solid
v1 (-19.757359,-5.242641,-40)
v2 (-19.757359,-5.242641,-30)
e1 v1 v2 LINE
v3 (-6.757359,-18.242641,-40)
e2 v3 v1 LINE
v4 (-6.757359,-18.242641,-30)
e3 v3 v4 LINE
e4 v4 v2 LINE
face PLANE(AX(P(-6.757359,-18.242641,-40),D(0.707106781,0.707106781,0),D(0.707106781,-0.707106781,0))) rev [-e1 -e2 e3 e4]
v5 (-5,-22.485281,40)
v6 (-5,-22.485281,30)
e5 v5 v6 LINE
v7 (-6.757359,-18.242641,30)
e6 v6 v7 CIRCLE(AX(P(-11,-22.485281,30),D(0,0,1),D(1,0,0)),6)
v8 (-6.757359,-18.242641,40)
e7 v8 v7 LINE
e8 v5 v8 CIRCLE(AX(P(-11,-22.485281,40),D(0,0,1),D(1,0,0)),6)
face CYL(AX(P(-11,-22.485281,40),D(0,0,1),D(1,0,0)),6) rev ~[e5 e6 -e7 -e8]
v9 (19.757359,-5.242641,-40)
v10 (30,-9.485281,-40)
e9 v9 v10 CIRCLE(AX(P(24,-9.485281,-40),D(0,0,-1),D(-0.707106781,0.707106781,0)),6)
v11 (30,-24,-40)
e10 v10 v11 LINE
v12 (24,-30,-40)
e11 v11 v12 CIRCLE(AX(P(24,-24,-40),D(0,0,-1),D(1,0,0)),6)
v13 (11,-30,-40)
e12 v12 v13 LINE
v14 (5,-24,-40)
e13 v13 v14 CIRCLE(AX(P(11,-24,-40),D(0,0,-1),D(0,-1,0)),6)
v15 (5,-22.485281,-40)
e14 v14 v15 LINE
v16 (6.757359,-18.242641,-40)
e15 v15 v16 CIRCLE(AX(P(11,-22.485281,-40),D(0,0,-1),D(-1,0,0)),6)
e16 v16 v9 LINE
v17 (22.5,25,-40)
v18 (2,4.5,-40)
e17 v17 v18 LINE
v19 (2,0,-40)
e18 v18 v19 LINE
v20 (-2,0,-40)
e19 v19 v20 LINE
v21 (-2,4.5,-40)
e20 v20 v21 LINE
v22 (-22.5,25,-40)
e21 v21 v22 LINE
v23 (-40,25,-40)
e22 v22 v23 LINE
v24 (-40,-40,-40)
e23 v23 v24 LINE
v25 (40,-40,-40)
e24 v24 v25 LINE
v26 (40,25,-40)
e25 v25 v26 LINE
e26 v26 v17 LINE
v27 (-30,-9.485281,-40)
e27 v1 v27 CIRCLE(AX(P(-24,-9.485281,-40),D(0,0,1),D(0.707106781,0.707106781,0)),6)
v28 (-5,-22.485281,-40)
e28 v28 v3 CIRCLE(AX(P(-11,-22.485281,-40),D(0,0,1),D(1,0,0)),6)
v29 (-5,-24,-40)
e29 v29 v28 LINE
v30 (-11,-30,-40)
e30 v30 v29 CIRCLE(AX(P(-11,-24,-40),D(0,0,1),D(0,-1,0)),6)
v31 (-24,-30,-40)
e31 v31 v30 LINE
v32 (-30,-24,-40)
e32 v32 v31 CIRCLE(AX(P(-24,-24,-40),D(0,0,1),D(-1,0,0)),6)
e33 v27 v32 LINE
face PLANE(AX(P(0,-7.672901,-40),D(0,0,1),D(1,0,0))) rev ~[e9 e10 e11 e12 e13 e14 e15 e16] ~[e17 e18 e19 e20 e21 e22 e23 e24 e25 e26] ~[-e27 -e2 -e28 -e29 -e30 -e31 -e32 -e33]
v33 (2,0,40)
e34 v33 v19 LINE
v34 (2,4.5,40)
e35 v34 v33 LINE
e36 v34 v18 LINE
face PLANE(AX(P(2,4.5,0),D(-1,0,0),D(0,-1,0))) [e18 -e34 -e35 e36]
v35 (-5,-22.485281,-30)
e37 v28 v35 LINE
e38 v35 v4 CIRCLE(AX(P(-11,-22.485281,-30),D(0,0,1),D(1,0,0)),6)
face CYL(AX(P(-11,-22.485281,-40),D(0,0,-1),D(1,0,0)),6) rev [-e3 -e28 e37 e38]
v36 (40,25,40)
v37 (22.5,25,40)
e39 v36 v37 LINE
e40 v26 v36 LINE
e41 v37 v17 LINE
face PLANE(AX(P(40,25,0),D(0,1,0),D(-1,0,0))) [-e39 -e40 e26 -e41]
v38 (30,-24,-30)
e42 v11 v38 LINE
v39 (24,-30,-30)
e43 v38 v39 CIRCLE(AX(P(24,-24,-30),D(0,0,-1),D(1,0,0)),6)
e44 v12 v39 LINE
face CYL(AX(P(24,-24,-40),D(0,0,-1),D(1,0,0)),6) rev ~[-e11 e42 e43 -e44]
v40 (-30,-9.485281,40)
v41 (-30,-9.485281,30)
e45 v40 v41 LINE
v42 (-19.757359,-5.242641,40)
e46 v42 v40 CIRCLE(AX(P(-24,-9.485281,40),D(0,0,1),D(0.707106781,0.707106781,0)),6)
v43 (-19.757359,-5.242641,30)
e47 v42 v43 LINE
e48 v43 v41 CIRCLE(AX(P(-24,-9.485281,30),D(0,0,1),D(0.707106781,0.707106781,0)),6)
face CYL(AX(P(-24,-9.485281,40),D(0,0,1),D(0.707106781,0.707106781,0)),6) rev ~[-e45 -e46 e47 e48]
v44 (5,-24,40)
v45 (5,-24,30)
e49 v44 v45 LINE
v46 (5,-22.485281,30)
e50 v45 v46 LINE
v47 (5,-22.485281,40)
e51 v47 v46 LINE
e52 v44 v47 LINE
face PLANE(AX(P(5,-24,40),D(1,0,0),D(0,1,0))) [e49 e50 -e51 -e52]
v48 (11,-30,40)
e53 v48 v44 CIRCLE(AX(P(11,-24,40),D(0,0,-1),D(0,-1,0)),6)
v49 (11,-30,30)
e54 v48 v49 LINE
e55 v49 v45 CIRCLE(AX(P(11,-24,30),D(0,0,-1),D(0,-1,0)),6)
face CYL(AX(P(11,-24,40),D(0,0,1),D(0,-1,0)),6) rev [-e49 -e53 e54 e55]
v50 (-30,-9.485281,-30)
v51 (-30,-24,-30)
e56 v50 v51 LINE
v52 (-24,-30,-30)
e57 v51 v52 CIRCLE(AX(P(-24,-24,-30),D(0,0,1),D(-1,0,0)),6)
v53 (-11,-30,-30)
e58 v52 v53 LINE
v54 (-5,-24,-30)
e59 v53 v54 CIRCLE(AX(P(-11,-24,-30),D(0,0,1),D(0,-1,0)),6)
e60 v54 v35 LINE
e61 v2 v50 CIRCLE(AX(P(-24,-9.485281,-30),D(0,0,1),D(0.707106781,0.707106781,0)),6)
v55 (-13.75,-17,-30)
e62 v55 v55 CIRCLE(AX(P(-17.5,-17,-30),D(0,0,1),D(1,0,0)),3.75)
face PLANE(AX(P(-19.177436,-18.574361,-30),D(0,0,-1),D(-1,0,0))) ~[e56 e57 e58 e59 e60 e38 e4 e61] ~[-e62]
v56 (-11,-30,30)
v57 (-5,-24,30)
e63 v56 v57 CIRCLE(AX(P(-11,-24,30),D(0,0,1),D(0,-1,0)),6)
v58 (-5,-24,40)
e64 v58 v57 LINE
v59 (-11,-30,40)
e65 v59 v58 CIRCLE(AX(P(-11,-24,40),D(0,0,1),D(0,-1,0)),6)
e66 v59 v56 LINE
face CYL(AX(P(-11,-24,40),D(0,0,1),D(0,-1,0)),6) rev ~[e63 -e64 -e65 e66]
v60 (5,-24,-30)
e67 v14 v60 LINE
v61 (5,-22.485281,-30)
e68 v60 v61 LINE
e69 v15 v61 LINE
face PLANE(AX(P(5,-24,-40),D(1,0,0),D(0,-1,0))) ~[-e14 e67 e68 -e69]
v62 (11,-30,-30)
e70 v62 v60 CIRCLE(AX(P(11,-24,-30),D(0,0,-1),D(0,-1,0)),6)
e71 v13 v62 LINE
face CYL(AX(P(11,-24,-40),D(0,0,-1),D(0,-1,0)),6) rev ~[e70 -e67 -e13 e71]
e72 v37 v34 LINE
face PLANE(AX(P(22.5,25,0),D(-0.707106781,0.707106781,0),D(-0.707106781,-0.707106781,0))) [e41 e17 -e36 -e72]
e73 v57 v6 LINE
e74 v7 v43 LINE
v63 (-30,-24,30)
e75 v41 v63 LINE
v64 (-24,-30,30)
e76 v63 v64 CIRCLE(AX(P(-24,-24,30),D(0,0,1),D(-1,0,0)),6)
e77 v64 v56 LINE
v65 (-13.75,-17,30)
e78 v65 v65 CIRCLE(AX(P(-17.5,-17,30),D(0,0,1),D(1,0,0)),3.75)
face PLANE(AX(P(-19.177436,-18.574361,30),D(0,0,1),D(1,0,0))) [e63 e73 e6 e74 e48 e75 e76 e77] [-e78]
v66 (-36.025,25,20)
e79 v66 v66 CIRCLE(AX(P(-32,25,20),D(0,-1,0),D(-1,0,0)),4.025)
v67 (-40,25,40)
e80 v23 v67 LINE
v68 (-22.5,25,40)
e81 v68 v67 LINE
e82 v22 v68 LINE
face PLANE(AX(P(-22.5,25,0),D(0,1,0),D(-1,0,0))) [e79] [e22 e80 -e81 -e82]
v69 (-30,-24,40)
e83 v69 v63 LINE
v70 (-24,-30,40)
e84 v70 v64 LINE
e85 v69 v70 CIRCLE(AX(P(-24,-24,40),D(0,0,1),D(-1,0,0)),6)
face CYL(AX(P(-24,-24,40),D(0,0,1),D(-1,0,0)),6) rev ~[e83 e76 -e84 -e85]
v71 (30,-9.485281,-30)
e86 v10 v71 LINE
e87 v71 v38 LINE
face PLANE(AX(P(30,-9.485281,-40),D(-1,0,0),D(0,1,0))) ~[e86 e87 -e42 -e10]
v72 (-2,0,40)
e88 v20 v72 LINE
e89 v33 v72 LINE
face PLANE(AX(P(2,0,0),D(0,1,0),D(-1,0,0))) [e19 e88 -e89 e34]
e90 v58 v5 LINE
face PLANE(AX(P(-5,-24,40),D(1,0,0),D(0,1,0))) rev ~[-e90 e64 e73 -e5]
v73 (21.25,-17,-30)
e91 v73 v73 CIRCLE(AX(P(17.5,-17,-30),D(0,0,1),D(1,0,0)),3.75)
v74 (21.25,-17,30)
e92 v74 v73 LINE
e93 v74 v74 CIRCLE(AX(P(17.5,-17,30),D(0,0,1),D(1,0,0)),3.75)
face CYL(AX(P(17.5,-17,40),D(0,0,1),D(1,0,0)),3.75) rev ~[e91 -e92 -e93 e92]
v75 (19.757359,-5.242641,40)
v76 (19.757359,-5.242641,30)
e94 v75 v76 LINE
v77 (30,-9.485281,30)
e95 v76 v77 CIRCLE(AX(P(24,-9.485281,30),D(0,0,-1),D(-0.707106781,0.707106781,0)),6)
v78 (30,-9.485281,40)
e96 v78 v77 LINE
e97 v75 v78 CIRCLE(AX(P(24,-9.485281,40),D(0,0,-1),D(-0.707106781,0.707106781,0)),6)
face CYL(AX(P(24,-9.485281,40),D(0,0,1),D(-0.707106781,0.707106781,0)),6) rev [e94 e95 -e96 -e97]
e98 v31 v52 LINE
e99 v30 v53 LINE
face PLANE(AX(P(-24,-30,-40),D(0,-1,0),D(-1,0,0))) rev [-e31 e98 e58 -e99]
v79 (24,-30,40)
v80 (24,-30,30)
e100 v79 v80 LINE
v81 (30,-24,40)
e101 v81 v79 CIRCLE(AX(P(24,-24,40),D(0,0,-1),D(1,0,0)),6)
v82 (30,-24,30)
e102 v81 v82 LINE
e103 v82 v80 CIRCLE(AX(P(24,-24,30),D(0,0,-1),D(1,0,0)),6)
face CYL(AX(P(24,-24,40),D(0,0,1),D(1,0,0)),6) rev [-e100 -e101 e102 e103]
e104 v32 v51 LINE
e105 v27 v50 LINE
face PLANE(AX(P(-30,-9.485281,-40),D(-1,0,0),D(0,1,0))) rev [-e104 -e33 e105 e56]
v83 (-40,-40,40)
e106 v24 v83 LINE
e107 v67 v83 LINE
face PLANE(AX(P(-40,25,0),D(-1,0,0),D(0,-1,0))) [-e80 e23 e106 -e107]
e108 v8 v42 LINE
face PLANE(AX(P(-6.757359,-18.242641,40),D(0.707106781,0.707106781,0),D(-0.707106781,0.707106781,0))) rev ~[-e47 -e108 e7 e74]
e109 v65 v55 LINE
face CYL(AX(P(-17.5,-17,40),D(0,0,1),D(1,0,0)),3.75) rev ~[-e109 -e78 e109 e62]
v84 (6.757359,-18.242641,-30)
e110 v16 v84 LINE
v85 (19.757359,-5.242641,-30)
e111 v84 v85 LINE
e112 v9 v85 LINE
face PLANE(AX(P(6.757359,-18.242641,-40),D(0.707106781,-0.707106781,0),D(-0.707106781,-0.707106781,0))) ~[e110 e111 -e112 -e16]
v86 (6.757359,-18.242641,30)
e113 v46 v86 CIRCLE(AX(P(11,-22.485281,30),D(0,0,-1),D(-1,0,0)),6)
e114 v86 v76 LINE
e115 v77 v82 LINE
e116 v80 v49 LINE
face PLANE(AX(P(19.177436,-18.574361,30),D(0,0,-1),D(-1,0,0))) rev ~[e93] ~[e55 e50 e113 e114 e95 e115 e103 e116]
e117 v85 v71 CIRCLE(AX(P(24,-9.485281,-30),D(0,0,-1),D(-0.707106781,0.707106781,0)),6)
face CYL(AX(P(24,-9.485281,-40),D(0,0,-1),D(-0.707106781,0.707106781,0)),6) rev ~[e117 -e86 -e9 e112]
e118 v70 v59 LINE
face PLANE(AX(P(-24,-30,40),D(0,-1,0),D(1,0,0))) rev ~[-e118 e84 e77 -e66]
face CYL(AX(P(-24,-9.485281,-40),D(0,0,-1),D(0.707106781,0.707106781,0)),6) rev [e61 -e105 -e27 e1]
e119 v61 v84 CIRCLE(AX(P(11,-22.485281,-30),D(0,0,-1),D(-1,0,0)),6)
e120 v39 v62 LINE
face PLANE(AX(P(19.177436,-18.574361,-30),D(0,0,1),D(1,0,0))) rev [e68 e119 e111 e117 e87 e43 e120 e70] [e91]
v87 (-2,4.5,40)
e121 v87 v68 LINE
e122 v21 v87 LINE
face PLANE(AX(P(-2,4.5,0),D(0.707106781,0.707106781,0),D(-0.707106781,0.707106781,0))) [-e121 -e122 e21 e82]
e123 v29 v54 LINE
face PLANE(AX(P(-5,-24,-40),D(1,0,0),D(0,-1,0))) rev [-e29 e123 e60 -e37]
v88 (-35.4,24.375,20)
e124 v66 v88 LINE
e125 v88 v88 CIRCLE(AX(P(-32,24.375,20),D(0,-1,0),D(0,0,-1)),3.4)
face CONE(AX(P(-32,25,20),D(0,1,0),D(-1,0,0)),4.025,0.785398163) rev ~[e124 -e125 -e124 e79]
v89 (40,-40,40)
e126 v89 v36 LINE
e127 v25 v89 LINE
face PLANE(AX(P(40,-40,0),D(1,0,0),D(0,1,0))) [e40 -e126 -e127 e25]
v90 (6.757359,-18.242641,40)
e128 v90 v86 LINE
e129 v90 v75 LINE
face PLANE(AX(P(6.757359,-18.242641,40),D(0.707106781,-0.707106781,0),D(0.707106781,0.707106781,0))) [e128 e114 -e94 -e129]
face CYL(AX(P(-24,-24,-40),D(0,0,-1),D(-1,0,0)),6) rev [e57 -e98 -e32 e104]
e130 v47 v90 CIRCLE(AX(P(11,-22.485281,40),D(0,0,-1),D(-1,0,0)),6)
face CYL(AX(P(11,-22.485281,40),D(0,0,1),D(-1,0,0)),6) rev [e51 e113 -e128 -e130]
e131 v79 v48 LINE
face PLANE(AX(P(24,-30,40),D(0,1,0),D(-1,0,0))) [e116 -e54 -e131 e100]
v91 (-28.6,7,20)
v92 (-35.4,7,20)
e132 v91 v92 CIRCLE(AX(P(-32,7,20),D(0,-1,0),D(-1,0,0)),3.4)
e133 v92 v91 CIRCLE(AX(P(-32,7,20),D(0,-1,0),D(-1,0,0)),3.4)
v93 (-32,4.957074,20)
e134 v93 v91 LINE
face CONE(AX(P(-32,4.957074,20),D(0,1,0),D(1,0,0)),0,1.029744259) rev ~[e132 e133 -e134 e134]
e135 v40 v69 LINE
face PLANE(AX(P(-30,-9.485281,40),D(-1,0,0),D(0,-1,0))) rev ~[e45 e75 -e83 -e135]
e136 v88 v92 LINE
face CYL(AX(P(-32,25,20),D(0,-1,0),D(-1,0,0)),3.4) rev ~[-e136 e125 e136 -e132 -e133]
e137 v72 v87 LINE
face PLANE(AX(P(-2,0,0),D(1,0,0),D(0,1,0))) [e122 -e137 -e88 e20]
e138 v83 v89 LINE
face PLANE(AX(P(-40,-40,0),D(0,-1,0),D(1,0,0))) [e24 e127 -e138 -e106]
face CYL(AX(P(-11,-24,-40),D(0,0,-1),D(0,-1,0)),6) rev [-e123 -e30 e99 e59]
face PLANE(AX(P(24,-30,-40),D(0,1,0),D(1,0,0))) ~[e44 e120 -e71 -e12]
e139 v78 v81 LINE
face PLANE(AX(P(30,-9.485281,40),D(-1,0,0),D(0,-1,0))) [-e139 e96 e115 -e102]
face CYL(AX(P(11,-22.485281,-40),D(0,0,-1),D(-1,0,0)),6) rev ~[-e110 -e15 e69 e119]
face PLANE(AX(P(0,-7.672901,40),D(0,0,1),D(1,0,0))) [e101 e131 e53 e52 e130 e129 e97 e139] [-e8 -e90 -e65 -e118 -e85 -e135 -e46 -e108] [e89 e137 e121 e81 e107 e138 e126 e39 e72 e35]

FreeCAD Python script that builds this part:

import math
import FreeCAD as App
import Part
import Sketcher

V = App.Vector
Q = App.Units.Quantity

doc = App.newDocument("Part")
params = doc.addObject("Spreadsheet::Sheet", "Params")
for row, (alias, value) in enumerate([
    ("sketch1_width", "4 mm"),
    ("sketch1_width2", "80 mm"),
    ("sketch1_height", "65 mm"),
    ("sketch1_width3", "17.5 mm"),
    ("sketch1_height2", "4.5 mm"),
    ("pad1_length", "80 mm"),
    ("sketch2_radius", "6 mm"),
    ("sketch2_diameter", "7.5 mm"),
    ("sketch2_width", "13 mm"),
    ("pocket1_length", "10 mm"),
    ("sketch3_diameter", "7.5 mm"),
    ("sketch4_diameter", "6.8 mm"),
    ("hole_diameter", "6.8 mm"),
    ("hole_depth", "18 mm"),
    ("hole_csink_diameter", "8.05 mm"),
], start=1):
    params.set(f"A{row}", alias)
    params.set(f"B{row}", "=" + value)
    params.setAlias(f"B{row}", alias)

body = doc.addObject("PartDesign::Body", "Body")

# Sketch on XY plane
sketch1 = doc.addObject("Sketcher::SketchObject", "Sketch")
body.addObject(sketch1)
sketch1.AttachmentSupport = (doc.XY_Plane, [""])
sketch1.MapMode = "FlatFace"
sketch1.addGeometry(Part.LineSegment(V(2, 0, 0), V(-2, 0, 0)), False)
sketch1.addGeometry(Part.LineSegment(V(-2, 0, 0), V(-2, 4.5, 0)), False)
sketch1.addGeometry(Part.LineSegment(V(-2, 4.5, 0), V(-22.5, 25, 0)), False)
sketch1.addGeometry(Part.LineSegment(V(-22.5, 25, 0), V(-40, 25, 0)), False)
sketch1.addGeometry(Part.LineSegment(V(-40, 25, 0), V(-40, -40, 0)), False)
sketch1.addGeometry(Part.LineSegment(V(-40, -40, 0), V(40, -40, 0)), False)
sketch1.addGeometry(Part.LineSegment(V(40, -40, 0), V(40, 25, 0)), False)
sketch1.addGeometry(Part.LineSegment(V(40, 25, 0), V(22.5, 25, 0)), False)
sketch1.addGeometry(Part.LineSegment(V(22.5, 25, 0), V(2, 4.5, 0)), False)
sketch1.addGeometry(Part.LineSegment(V(2, 4.5, 0), V(2, 0, 0)), False)
sketch1.addConstraint(Sketcher.Constraint("Coincident", 0, 2, 1, 1))
sketch1.addConstraint(Sketcher.Constraint("Coincident", 1, 2, 2, 1))
sketch1.addConstraint(Sketcher.Constraint("Coincident", 2, 2, 3, 1))
sketch1.addConstraint(Sketcher.Constraint("Coincident", 3, 2, 4, 1))
sketch1.addConstraint(Sketcher.Constraint("Coincident", 4, 2, 5, 1))
sketch1.addConstraint(Sketcher.Constraint("Coincident", 5, 2, 6, 1))
sketch1.addConstraint(Sketcher.Constraint("Coincident", 6, 2, 7, 1))
sketch1.addConstraint(Sketcher.Constraint("Coincident", 7, 2, 8, 1))
sketch1.addConstraint(Sketcher.Constraint("Coincident", 8, 2, 9, 1))
sketch1.addConstraint(Sketcher.Constraint("Coincident", 9, 2, 0, 1))
sketch1.addConstraint(Sketcher.Constraint("Horizontal", 0))
sketch1.addConstraint(Sketcher.Constraint("Vertical", 1))
sketch1.addConstraint(Sketcher.Constraint("Horizontal", 3))
sketch1.addConstraint(Sketcher.Constraint("Vertical", 4))
sketch1.addConstraint(Sketcher.Constraint("Horizontal", 5))
sketch1.addConstraint(Sketcher.Constraint("Vertical", 6))
sketch1.addConstraint(Sketcher.Constraint("Horizontal", 7))
sketch1.addConstraint(Sketcher.Constraint("Vertical", 9))
sketch1.addConstraint(Sketcher.Constraint("Symmetric", 0, 2, 9, 2, -1, 1))
sketch1.addConstraint(Sketcher.Constraint("Symmetric", 3, 2, 6, 2, -2))
sketch1.addConstraint(Sketcher.Constraint("Perpendicular", 2, 8))
sketch1.addConstraint(Sketcher.Constraint("Horizontal", 1, 2, 8, 2))
sketch1.addConstraint(Sketcher.Constraint("Equal", 3, 7))
sketch1.addConstraint(Sketcher.Constraint("DistanceX", 0, 2, 0, 1, Q("4 mm")))
sketch1.addConstraint(Sketcher.Constraint("DistanceX", 5, 1, 5, 2, Q("80 mm")))
sketch1.addConstraint(Sketcher.Constraint("DistanceY", 4, 2, 4, 1, Q("65 mm")))
sketch1.addConstraint(Sketcher.Constraint("DistanceX", 3, 2, 3, 1, Q("17.5 mm")))
sketch1.addConstraint(Sketcher.Constraint("DistanceY", 1, 1, 1, 2, Q("4.5 mm")))
sketch1.setExpression("Constraints[23]", "Params.sketch1_width")
sketch1.setExpression("Constraints[24]", "Params.sketch1_width2")
sketch1.setExpression("Constraints[25]", "Params.sketch1_height")
sketch1.setExpression("Constraints[26]", "Params.sketch1_width3")
sketch1.setExpression("Constraints[27]", "Params.sketch1_height2")
pad1 = doc.addObject("PartDesign::Pad", "Pad")
body.addObject(pad1)
pad1.Profile = sketch1
pad1.setExpression("Length", "Params.pad1_length")
pad1.Midplane = True

# Sketch on XY plane
sketch2 = doc.addObject("Sketcher::SketchObject", "Sketch001")
body.addObject(sketch2)
sketch2.AttachmentSupport = (doc.XY_Plane, [""])
sketch2.MapMode = "FlatFace"
sketch2.AttachmentOffset = App.Placement(V(0, 0, 40), App.Rotation())
sketch2.addGeometry(Part.LineSegment(V(30, -24, 0), V(30, -9.5, 0)), False)
sketch2.addGeometry(Part.ArcOfCircle(Part.Circle(V(24, -9.5, 0), V(0, 0, 1), 6), math.radians(0), math.radians(135)), False)
sketch2.addGeometry(Part.LineSegment(V(19.8, -5.2, 0), V(6.8, -18.2, 0)), False)
sketch2.addGeometry(Part.ArcOfCircle(Part.Circle(V(11, -22.5, 0), V(0, 0, 1), 6), math.radians(135), math.radians(180)), False)
sketch2.addGeometry(Part.LineSegment(V(5, -22.5, 0), V(5, -24, 0)), False)
sketch2.addGeometry(Part.ArcOfCircle(Part.Circle(V(11, -24, 0), V(0, 0, 1), 6), math.radians(180), math.radians(270)), False)
sketch2.addGeometry(Part.LineSegment(V(11, -30, 0), V(24, -30, 0)), False)
sketch2.addGeometry(Part.ArcOfCircle(Part.Circle(V(24, -24, 0), V(0, 0, 1), 6), math.radians(-90), math.radians(0)), False)
sketch2.addGeometry(Part.Circle(V(17.5, -17, 0), V(0, 0, 1), 3.8), False)
sketch2.addGeometry(Part.LineSegment(V(-24, -30, 0), V(-11, -30, 0)), False)
sketch2.addGeometry(Part.ArcOfCircle(Part.Circle(V(-11, -24, 0), V(0, 0, 1), 6), math.radians(-90), math.radians(0)), False)
sketch2.addGeometry(Part.LineSegment(V(-5, -24, 0), V(-5, -22.5, 0)), False)
sketch2.addGeometry(Part.ArcOfCircle(Part.Circle(V(-11, -22.5, 0), V(0, 0, 1), 6), math.radians(0), math.radians(45)), False)
sketch2.addGeometry(Part.LineSegment(V(-6.8, -18.2, 0), V(-19.8, -5.2, 0)), False)
sketch2.addGeometry(Part.ArcOfCircle(Part.Circle(V(-24, -9.5, 0), V(0, 0, 1), 6), math.radians(45), math.radians(180)), False)
sketch2.addGeometry(Part.LineSegment(V(-30, -9.5, 0), V(-30, -24, 0)), False)
sketch2.addGeometry(Part.ArcOfCircle(Part.Circle(V(-24, -24, 0), V(0, 0, 1), 6), math.radians(180), math.radians(270)), False)
sketch2.addGeometry(Part.Circle(V(-17.5, -17, 0), V(0, 0, 1), 3.8), False)
sketch2.addConstraint(Sketcher.Constraint("Tangent", 0, 2, 1, 1))
sketch2.addConstraint(Sketcher.Constraint("Tangent", 1, 2, 2, 1))
sketch2.addConstraint(Sketcher.Constraint("Tangent", 2, 2, 3, 1))
sketch2.addConstraint(Sketcher.Constraint("Tangent", 3, 2, 4, 1))
sketch2.addConstraint(Sketcher.Constraint("Tangent", 4, 2, 5, 1))
sketch2.addConstraint(Sketcher.Constraint("Tangent", 5, 2, 6, 1))
sketch2.addConstraint(Sketcher.Constraint("Tangent", 6, 2, 7, 1))
sketch2.addConstraint(Sketcher.Constraint("Tangent", 7, 2, 0, 1))
sketch2.addConstraint(Sketcher.Constraint("Tangent", 9, 2, 10, 1))
sketch2.addConstraint(Sketcher.Constraint("Tangent", 10, 2, 11, 1))
sketch2.addConstraint(Sketcher.Constraint("Tangent", 11, 2, 12, 1))
sketch2.addConstraint(Sketcher.Constraint("Tangent", 12, 2, 13, 1))
sketch2.addConstraint(Sketcher.Constraint("Tangent", 13, 2, 14, 1))
sketch2.addConstraint(Sketcher.Constraint("Tangent", 14, 2, 15, 1))
sketch2.addConstraint(Sketcher.Constraint("Tangent", 15, 2, 16, 1))
sketch2.addConstraint(Sketcher.Constraint("Tangent", 16, 2, 9, 1))
sketch2.addConstraint(Sketcher.Constraint("Vertical", 0))
sketch2.addConstraint(Sketcher.Constraint("Vertical", 4))
sketch2.addConstraint(Sketcher.Constraint("Horizontal", 6))
sketch2.addConstraint(Sketcher.Constraint("Horizontal", 9))
sketch2.addConstraint(Sketcher.Constraint("Vertical", 11))
sketch2.addConstraint(Sketcher.Constraint("Vertical", 15))
sketch2.addConstraint(Sketcher.Constraint("Equal", 1, 3))
sketch2.addConstraint(Sketcher.Constraint("Equal", 3, 5))
sketch2.addConstraint(Sketcher.Constraint("Equal", 5, 7))
sketch2.addConstraint(Sketcher.Constraint("Equal", 7, 10))
sketch2.addConstraint(Sketcher.Constraint("Equal", 10, 12))
sketch2.addConstraint(Sketcher.Constraint("Equal", 12, 14))
sketch2.addConstraint(Sketcher.Constraint("Equal", 14, 16))
sketch2.addConstraint(Sketcher.Constraint("Equal", 8, 17))
sketch2.addConstraint(Sketcher.Constraint("Symmetric", 5, 3, 10, 3, -2))
sketch2.addConstraint(Sketcher.Constraint("Symmetric", 1, 3, 14, 3, -2))
sketch2.addConstraint(Sketcher.Constraint("Symmetric", 8, 3, 17, 3, -2))
sketch2.addConstraint(Sketcher.Constraint("Perpendicular", 2, 13))
sketch2.addConstraint(Sketcher.Constraint("Horizontal", 3, 3, 12, 3))
sketch2.addConstraint(Sketcher.Constraint("Radius", 1, Q("6 mm")))
sketch2.addConstraint(Sketcher.Constraint("Diameter", 8, Q("7.5 mm")))
sketch2.addConstraint(Sketcher.Constraint("DistanceX", 6, 1, 6, 2, Q("13 mm")))
sketch2.addConstraint(Sketcher.Constraint("DistanceX", -1, 1, 1, 3, Q("24 mm")))
sketch2.addConstraint(Sketcher.Constraint("DistanceY", 5, 3, -1, 1, Q("24 mm")))
sketch2.addConstraint(Sketcher.Constraint("DistanceY", 8, 3, -1, 1, Q("17 mm")))
sketch2.addConstraint(Sketcher.Constraint("DistanceX", -1, 1, 8, 3, Q("17.5 mm")))
sketch2.addConstraint(Sketcher.Constraint("DistanceY", 0, 1, 0, 2, Q("14.514719 mm")))
sketch2.setExpression("Constraints[35]", "Params.sketch2_radius")
sketch2.setExpression("Constraints[36]", "Params.sketch2_diameter")
sketch2.setExpression("Constraints[37]", "Params.sketch2_width")
pocket1 = doc.addObject("PartDesign::Pocket", "Pocket")
body.addObject(pocket1)
pocket1.Profile = sketch2
pocket1.setExpression("Length", "Params.pocket1_length")
doc.recompute()

mirrored = doc.addObject("PartDesign::Mirrored", "Mirrored")
body.addObject(mirrored)
mirrored.Originals = [pocket1]
mirrored.MirrorPlane = (doc.XY_Plane, [""])
body.Tip = mirrored

# Sketch on XY plane
sketch3 = doc.addObject("Sketcher::SketchObject", "Sketch002")
body.addObject(sketch3)
sketch3.AttachmentSupport = (doc.XY_Plane, [""])
sketch3.MapMode = "FlatFace"
sketch3.AttachmentOffset = App.Placement(V(0, 0, 40), App.Rotation())
sketch3.addGeometry(Part.Circle(V(-17.5, -17, 0), V(0, 0, 1), 3.8), False)
sketch3.addGeometry(Part.Circle(V(17.5, -17, 0), V(0, 0, 1), 3.8), False)
sketch3.addConstraint(Sketcher.Constraint("Equal", 0, 1))
sketch3.addConstraint(Sketcher.Constraint("Symmetric", 0, 3, 1, 3, -2))
sketch3.addConstraint(Sketcher.Constraint("Diameter", 0, Q("7.5 mm")))
sketch3.addConstraint(Sketcher.Constraint("DistanceY", 0, 3, -1, 1, Q("17 mm")))
sketch3.addConstraint(Sketcher.Constraint("DistanceX", 0, 3, 1, 3, Q("35 mm")))
sketch3.setExpression("Constraints[2]", "Params.sketch3_diameter")
pocket2 = doc.addObject("PartDesign::Pocket", "Pocket001")
body.addObject(pocket2)
pocket2.Profile = sketch3
pocket2.Type = "ThroughAll"

# Sketch on XZ plane
sketch4 = doc.addObject("Sketcher::SketchObject", "Sketch003")
body.addObject(sketch4)
sketch4.AttachmentSupport = (doc.XZ_Plane, [""])
sketch4.MapMode = "FlatFace"
sketch4.AttachmentOffset = App.Placement(V(0, 0, -25), App.Rotation())
sketch4.addGeometry(Part.Circle(V(-32, 20, 0), V(0, 0, 1), 3.4), False)
sketch4.addConstraint(Sketcher.Constraint("Diameter", 0, Q("6.8 mm")))
sketch4.addConstraint(Sketcher.Constraint("DistanceX", 0, 3, -1, 1, Q("32 mm")))
sketch4.addConstraint(Sketcher.Constraint("DistanceY", -1, 1, 0, 3, Q("20 mm")))
sketch4.setExpression("Constraints[0]", "Params.sketch4_diameter")
doc.recompute()
hole = doc.addObject("PartDesign::Hole", "Hole")
body.addObject(hole)
hole.Profile = sketch4
hole.ThreadType = "None"
hole.setExpression("Diameter", "Params.hole_diameter")
hole.DepthType = "Dimension"
hole.setExpression("Depth", "Params.hole_depth")
hole.DrillPoint = "Angled"
hole.DrillPointAngle = 118
hole.HoleCutType = "Countersink"
hole.setExpression("HoleCutDiameter", "Params.hole_csink_diameter")
hole.HoleCutCountersinkAngle = 90
hole.Reversed = True

doc.recompute()
